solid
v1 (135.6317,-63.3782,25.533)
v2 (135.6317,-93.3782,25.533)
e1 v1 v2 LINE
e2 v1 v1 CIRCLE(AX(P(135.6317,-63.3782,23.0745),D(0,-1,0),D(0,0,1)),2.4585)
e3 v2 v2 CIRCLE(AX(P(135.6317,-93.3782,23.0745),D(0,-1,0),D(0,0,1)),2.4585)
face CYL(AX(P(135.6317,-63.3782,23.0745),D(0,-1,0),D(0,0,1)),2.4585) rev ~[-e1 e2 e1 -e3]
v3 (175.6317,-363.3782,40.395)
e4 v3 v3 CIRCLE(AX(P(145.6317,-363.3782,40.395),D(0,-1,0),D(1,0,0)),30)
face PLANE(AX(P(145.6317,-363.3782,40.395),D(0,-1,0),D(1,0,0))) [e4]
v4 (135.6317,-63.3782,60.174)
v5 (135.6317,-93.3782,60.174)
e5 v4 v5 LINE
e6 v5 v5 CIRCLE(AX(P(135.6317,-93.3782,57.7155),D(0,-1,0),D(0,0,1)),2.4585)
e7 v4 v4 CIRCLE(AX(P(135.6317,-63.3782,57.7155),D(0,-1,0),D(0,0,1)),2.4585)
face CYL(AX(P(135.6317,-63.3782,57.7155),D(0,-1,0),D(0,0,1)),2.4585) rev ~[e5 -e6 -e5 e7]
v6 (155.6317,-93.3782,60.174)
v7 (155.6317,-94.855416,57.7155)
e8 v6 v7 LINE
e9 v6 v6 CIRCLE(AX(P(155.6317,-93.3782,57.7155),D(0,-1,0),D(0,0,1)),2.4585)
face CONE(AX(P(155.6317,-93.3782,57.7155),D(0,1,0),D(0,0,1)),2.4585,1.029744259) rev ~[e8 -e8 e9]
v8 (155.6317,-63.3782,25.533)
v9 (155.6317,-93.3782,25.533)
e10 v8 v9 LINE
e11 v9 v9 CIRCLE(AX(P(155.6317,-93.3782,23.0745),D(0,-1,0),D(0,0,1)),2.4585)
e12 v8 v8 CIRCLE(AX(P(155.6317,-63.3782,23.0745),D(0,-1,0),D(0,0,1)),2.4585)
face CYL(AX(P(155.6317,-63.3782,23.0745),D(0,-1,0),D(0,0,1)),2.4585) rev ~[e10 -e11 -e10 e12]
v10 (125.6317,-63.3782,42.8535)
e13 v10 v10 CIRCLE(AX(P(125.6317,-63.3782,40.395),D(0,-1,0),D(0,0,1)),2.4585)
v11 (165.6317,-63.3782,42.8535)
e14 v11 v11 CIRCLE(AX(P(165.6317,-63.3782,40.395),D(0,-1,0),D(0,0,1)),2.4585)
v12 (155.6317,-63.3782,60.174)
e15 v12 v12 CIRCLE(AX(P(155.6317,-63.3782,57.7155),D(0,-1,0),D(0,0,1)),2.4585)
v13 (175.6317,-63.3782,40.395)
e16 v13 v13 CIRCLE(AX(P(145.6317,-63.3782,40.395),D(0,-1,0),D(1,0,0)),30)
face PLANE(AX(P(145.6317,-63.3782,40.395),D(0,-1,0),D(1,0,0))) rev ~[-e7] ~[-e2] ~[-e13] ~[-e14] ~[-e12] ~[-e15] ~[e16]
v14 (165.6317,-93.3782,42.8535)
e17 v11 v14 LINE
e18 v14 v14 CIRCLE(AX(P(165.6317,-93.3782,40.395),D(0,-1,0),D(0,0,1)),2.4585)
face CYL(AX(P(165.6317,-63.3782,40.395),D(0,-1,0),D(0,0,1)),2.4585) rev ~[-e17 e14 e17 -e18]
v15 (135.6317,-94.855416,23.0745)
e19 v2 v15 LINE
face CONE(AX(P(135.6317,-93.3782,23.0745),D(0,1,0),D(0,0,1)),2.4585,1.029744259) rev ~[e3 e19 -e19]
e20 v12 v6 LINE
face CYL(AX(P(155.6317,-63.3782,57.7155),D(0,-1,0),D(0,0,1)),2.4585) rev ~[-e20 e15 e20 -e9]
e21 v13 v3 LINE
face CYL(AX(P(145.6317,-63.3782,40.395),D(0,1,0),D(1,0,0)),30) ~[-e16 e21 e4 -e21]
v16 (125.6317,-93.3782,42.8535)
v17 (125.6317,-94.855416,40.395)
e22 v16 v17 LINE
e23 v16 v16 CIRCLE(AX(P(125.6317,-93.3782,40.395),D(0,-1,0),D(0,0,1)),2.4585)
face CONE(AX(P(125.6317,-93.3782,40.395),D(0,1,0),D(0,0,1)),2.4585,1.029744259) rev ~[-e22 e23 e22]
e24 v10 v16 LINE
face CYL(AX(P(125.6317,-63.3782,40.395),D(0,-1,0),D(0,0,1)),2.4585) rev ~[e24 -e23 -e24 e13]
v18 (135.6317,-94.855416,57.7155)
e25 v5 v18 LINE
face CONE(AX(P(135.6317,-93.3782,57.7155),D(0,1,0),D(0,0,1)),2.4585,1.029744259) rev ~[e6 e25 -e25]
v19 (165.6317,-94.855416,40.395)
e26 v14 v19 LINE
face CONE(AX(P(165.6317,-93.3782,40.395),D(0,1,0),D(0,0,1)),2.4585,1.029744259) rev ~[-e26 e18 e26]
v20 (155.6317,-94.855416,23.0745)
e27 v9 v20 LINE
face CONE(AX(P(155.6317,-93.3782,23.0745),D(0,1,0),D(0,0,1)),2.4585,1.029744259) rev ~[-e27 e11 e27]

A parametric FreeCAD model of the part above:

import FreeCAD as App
import Part
import Sketcher
from FreeCAD import Vector
Q = App.Units.Quantity

doc = App.newDocument("Part")
body = doc.addObject("PartDesign::Body", "Body")

sketch1 = body.newObject("Sketcher::SketchObject", "Sketch")
sketch1.AttachmentSupport = (doc.getObject("XZ_Plane"), [""])
sketch1.MapMode = "FlatFace"
sketch1.AttachmentOffset = App.Placement(Vector(0, 0, 63.3782), App.Rotation())
sketch1.addGeometry(Part.Circle(Vector(145.6317, 40.395, 0), Vector(0, 0, 1), 30), False)
sketch1.addConstraint(Sketcher.Constraint("Diameter", 0, Q("60 mm")))
sketch1.addConstraint(Sketcher.Constraint("DistanceY", -1, 1, 0, 3, Q("40.395 mm")))
sketch1.addConstraint(Sketcher.Constraint("DistanceX", -1, 1, 0, 3, Q("145.6317 mm")))
pad1 = body.newObject("PartDesign::Pad", "Pad")
pad1.Profile = sketch1
pad1.Length = 300

sketch2 = body.newObject("Sketcher::SketchObject", "Sketch001")
sketch2.AttachmentSupport = (doc.getObject("XZ_Plane"), [""])
sketch2.MapMode = "FlatFace"
sketch2.AttachmentOffset = App.Placement(Vector(0, 0, 63.3782), App.Rotation())
sketch2.addGeometry(Part.Circle(Vector(135.6317, 23.0745, 0), Vector(0, 0, 1), 2.4585), False)
sketch2.addGeometry(Part.Circle(Vector(155.6317, 23.0745, 0), Vector(0, 0, 1), 2.4585), False)
sketch2.addGeometry(Part.Circle(Vector(165.6317, 40.395, 0), Vector(0, 0, 1), 2.4585), False)
sketch2.addGeometry(Part.Circle(Vector(155.6317, 57.7155, 0), Vector(0, 0, 1), 2.4585), False)
sketch2.addGeometry(Part.Circle(Vector(135.6317, 57.7155, 0), Vector(0, 0, 1), 2.4585), False)
sketch2.addGeometry(Part.Circle(Vector(125.6317, 40.395, 0), Vector(0, 0, 1), 2.4585), False)
sketch2.addConstraint(Sketcher.Constraint("Equal", 0, 1))
sketch2.addConstraint(Sketcher.Constraint("Equal", 1, 2))
sketch2.addConstraint(Sketcher.Constraint("Equal", 2, 3))
sketch2.addConstraint(Sketcher.Constraint("Equal", 3, 4))
sketch2.addConstraint(Sketcher.Constraint("Equal", 4, 5))
sketch2.addConstraint(Sketcher.Constraint("Horizontal", 0, 3, 1, 3))
sketch2.addConstraint(Sketcher.Constraint("Horizontal", 3, 3, 4, 3))
sketch2.addConstraint(Sketcher.Constraint("Horizontal", 2, 3, 5, 3))
sketch2.addConstraint(Sketcher.Constraint("Vertical", 1, 3, 3, 3))
sketch2.addConstraint(Sketcher.Constraint("Vertical", 0, 3, 4, 3))
sketch2.addConstraint(Sketcher.Constraint("Diameter", 0, Q("4.917 mm")))
sketch2.addConstraint(Sketcher.Constraint("DistanceX", 0, 3, 1, 3, Q("20 mm")))
sketch2.addConstraint(Sketcher.Constraint("DistanceX", 1, 3, 2, 3, Q("10 mm")))
sketch2.addConstraint(Sketcher.Constraint("DistanceX", 5, 3, 4, 3, Q("10 mm")))
sketch2.addConstraint(Sketcher.Constraint("DistanceY", -1, 1, 2, 3, Q("40.395 mm")))
sketch2.addConstraint(Sketcher.Constraint("DistanceY", 1, 3, 3, 3, Q("34.641 mm")))
sketch2.addConstraint(Sketcher.Constraint("DistanceX", -1, 1, 0, 3, Q("135.6317 mm")))
sketch2.addConstraint(Sketcher.Constraint("DistanceY", -1, 1, 0, 3, Q("23.0745 mm")))
doc.recompute()
hole = body.newObject("PartDesign::Hole", "Hole")
hole.Profile = sketch2
hole.ThreadType = "None"
hole.Diameter = 4.917
hole.DepthType = "Dimension"
hole.Depth = 30
hole.DrillPoint = "Angled"
hole.DrillPointAngle = 118
hole.Reversed = True

doc.recompute()
